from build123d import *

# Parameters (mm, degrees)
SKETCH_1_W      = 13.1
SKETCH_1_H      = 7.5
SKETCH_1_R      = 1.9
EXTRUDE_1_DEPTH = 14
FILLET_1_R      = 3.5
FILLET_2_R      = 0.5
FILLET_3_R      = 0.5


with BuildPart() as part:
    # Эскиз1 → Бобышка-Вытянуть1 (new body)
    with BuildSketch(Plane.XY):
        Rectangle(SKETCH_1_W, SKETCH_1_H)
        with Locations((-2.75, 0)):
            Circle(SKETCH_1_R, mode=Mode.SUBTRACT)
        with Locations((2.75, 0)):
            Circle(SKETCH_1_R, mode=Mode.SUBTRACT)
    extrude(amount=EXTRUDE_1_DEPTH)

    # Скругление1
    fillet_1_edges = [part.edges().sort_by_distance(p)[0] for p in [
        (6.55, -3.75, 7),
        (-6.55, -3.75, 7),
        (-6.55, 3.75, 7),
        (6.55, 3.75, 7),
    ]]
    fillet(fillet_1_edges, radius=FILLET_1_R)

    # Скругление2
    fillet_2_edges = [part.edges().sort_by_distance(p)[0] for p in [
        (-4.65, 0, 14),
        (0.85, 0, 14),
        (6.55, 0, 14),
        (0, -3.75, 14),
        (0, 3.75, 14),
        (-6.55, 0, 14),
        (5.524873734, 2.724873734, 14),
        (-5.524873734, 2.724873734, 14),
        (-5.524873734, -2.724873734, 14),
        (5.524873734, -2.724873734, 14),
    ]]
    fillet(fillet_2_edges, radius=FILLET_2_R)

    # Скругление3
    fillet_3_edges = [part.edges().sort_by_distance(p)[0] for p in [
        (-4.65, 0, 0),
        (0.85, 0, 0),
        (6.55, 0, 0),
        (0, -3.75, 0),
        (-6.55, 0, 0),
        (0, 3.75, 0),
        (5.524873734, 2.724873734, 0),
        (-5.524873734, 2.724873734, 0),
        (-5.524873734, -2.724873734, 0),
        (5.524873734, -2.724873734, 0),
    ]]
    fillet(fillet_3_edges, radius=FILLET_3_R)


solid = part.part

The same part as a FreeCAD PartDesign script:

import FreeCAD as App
import Part
import Sketcher

V = App.Vector
Q = App.Units.Quantity


def edges_at(feature, points):
    """Names of the edges that pass closest to the given points."""
    edges = feature.Shape.Edges
    near = lambda p: min(range(len(edges)), key=lambda i: edges[i].distToShape(Part.Vertex(*p))[0])
    return sorted({f"Edge{near(p) + 1}" for p in points})


def add_polygon(sketch, points):
    """Adds a closed chain of lines whose ends are joined by coincident constraints."""
    first, n = sketch.GeometryCount, len(points)
    for a, b in zip(points, points[1:] + points[:1]):
        sketch.addGeometry(Part.LineSegment(App.Vector(*a, 0), App.Vector(*b, 0)), False)
    for i in range(n):
        sketch.addConstraint(Sketcher.Constraint("Coincident", first + i, 2, first + (i + 1) % n, 1))

doc = App.newDocument("Part")
body = doc.addObject("PartDesign::Body", "Body")

# Sketch on XY plane
sketch1 = doc.addObject("Sketcher::SketchObject", "Sketch")
body.addObject(sketch1)
sketch1.AttachmentSupport = (doc.XY_Plane, [""])
sketch1.MapMode = "FlatFace"
add_polygon(sketch1, [(-6.5, 3.8), (-6.5, -3.8), (6.5, -3.8), (6.5, 3.8)])  # lines 0-3
sketch1.addGeometry(Part.Circle(V(-2.8, 0, 0), V(0, 0, 1), 1.9), False)  # 4
sketch1.addGeometry(Part.Circle(V(2.8, 0, 0), V(0, 0, 1), 1.9), False)  # 5
sketch1.addConstraint([
    Sketcher.Constraint("Vertical", 0),
    Sketcher.Constraint("Horizontal", 1),
    Sketcher.Constraint("Vertical", 2),
    Sketcher.Constraint("Horizontal", 3),
    Sketcher.Constraint("Equal", 4, 5),
    Sketcher.Constraint("Symmetric", 4, 3, 5, 3, -1, 1),
    Sketcher.Constraint("Symmetric", 0, 2, 2, 2, -1, 1),
    Sketcher.Constraint("PointOnObject", 4, 3, -1),
    Sketcher.Constraint("Diameter", 4, Q("3.8 mm")),
    Sketcher.Constraint("DistanceX", 1, 1, 1, 2, Q("13.1 mm")),
    Sketcher.Constraint("DistanceY", 0, 2, 0, 1, Q("7.5 mm")),
    Sketcher.Constraint("DistanceX", 4, 3, 5, 3, Q("5.5 mm")),
])
pad1 = doc.addObject("PartDesign::Pad", "Pad")
body.addObject(pad1)
pad1.Profile = sketch1
pad1.Length = 14
doc.recompute()

fillet = doc.addObject("PartDesign::Fillet", "Fillet")
body.addObject(fillet)
fillet.Base = (pad1, edges_at(pad1, [
    (6.55, -3.75, 7),
    (-6.55, -3.75, 7),
    (-6.55, 3.75, 7),
    (6.55, 3.75, 7),
]))
fillet.Radius = 3.5
doc.recompute()

fillet2 = doc.addObject("PartDesign::Fillet", "Fillet001")
body.addObject(fillet2)
fillet2.Base = (fillet, edges_at(fillet, [
    (-4.65, 0, 14),
    (0.85, 0, 14),
    (6.55, 0, 14),
    (0, -3.75, 14),
    (0, 3.75, 14),
    (-6.55, 0, 14),
    (5.525, 2.725, 14),
    (-5.525, 2.725, 14),
    (-5.525, -2.725, 14),
    (5.525, -2.725, 14),
]))
fillet2.Radius = 0.5
doc.recompute()

fillet3 = doc.addObject("PartDesign::Fillet", "Fillet002")
body.addObject(fillet3)
fillet3.Base = (fillet2, edges_at(fillet2, [
    (-4.65, 0, 0),
    (0.85, 0, 0),
    (6.55, 0, 0),
    (0, -3.75, 0),
    (-6.55, 0, 0),
    (0, 3.75, 0),
    (5.525, 2.725, 0),
    (-5.525, 2.725, 0),
    (-5.525, -2.725, 0),
    (5.525, -2.725, 0),
]))
fillet3.Radius = 0.5

doc.recompute()
